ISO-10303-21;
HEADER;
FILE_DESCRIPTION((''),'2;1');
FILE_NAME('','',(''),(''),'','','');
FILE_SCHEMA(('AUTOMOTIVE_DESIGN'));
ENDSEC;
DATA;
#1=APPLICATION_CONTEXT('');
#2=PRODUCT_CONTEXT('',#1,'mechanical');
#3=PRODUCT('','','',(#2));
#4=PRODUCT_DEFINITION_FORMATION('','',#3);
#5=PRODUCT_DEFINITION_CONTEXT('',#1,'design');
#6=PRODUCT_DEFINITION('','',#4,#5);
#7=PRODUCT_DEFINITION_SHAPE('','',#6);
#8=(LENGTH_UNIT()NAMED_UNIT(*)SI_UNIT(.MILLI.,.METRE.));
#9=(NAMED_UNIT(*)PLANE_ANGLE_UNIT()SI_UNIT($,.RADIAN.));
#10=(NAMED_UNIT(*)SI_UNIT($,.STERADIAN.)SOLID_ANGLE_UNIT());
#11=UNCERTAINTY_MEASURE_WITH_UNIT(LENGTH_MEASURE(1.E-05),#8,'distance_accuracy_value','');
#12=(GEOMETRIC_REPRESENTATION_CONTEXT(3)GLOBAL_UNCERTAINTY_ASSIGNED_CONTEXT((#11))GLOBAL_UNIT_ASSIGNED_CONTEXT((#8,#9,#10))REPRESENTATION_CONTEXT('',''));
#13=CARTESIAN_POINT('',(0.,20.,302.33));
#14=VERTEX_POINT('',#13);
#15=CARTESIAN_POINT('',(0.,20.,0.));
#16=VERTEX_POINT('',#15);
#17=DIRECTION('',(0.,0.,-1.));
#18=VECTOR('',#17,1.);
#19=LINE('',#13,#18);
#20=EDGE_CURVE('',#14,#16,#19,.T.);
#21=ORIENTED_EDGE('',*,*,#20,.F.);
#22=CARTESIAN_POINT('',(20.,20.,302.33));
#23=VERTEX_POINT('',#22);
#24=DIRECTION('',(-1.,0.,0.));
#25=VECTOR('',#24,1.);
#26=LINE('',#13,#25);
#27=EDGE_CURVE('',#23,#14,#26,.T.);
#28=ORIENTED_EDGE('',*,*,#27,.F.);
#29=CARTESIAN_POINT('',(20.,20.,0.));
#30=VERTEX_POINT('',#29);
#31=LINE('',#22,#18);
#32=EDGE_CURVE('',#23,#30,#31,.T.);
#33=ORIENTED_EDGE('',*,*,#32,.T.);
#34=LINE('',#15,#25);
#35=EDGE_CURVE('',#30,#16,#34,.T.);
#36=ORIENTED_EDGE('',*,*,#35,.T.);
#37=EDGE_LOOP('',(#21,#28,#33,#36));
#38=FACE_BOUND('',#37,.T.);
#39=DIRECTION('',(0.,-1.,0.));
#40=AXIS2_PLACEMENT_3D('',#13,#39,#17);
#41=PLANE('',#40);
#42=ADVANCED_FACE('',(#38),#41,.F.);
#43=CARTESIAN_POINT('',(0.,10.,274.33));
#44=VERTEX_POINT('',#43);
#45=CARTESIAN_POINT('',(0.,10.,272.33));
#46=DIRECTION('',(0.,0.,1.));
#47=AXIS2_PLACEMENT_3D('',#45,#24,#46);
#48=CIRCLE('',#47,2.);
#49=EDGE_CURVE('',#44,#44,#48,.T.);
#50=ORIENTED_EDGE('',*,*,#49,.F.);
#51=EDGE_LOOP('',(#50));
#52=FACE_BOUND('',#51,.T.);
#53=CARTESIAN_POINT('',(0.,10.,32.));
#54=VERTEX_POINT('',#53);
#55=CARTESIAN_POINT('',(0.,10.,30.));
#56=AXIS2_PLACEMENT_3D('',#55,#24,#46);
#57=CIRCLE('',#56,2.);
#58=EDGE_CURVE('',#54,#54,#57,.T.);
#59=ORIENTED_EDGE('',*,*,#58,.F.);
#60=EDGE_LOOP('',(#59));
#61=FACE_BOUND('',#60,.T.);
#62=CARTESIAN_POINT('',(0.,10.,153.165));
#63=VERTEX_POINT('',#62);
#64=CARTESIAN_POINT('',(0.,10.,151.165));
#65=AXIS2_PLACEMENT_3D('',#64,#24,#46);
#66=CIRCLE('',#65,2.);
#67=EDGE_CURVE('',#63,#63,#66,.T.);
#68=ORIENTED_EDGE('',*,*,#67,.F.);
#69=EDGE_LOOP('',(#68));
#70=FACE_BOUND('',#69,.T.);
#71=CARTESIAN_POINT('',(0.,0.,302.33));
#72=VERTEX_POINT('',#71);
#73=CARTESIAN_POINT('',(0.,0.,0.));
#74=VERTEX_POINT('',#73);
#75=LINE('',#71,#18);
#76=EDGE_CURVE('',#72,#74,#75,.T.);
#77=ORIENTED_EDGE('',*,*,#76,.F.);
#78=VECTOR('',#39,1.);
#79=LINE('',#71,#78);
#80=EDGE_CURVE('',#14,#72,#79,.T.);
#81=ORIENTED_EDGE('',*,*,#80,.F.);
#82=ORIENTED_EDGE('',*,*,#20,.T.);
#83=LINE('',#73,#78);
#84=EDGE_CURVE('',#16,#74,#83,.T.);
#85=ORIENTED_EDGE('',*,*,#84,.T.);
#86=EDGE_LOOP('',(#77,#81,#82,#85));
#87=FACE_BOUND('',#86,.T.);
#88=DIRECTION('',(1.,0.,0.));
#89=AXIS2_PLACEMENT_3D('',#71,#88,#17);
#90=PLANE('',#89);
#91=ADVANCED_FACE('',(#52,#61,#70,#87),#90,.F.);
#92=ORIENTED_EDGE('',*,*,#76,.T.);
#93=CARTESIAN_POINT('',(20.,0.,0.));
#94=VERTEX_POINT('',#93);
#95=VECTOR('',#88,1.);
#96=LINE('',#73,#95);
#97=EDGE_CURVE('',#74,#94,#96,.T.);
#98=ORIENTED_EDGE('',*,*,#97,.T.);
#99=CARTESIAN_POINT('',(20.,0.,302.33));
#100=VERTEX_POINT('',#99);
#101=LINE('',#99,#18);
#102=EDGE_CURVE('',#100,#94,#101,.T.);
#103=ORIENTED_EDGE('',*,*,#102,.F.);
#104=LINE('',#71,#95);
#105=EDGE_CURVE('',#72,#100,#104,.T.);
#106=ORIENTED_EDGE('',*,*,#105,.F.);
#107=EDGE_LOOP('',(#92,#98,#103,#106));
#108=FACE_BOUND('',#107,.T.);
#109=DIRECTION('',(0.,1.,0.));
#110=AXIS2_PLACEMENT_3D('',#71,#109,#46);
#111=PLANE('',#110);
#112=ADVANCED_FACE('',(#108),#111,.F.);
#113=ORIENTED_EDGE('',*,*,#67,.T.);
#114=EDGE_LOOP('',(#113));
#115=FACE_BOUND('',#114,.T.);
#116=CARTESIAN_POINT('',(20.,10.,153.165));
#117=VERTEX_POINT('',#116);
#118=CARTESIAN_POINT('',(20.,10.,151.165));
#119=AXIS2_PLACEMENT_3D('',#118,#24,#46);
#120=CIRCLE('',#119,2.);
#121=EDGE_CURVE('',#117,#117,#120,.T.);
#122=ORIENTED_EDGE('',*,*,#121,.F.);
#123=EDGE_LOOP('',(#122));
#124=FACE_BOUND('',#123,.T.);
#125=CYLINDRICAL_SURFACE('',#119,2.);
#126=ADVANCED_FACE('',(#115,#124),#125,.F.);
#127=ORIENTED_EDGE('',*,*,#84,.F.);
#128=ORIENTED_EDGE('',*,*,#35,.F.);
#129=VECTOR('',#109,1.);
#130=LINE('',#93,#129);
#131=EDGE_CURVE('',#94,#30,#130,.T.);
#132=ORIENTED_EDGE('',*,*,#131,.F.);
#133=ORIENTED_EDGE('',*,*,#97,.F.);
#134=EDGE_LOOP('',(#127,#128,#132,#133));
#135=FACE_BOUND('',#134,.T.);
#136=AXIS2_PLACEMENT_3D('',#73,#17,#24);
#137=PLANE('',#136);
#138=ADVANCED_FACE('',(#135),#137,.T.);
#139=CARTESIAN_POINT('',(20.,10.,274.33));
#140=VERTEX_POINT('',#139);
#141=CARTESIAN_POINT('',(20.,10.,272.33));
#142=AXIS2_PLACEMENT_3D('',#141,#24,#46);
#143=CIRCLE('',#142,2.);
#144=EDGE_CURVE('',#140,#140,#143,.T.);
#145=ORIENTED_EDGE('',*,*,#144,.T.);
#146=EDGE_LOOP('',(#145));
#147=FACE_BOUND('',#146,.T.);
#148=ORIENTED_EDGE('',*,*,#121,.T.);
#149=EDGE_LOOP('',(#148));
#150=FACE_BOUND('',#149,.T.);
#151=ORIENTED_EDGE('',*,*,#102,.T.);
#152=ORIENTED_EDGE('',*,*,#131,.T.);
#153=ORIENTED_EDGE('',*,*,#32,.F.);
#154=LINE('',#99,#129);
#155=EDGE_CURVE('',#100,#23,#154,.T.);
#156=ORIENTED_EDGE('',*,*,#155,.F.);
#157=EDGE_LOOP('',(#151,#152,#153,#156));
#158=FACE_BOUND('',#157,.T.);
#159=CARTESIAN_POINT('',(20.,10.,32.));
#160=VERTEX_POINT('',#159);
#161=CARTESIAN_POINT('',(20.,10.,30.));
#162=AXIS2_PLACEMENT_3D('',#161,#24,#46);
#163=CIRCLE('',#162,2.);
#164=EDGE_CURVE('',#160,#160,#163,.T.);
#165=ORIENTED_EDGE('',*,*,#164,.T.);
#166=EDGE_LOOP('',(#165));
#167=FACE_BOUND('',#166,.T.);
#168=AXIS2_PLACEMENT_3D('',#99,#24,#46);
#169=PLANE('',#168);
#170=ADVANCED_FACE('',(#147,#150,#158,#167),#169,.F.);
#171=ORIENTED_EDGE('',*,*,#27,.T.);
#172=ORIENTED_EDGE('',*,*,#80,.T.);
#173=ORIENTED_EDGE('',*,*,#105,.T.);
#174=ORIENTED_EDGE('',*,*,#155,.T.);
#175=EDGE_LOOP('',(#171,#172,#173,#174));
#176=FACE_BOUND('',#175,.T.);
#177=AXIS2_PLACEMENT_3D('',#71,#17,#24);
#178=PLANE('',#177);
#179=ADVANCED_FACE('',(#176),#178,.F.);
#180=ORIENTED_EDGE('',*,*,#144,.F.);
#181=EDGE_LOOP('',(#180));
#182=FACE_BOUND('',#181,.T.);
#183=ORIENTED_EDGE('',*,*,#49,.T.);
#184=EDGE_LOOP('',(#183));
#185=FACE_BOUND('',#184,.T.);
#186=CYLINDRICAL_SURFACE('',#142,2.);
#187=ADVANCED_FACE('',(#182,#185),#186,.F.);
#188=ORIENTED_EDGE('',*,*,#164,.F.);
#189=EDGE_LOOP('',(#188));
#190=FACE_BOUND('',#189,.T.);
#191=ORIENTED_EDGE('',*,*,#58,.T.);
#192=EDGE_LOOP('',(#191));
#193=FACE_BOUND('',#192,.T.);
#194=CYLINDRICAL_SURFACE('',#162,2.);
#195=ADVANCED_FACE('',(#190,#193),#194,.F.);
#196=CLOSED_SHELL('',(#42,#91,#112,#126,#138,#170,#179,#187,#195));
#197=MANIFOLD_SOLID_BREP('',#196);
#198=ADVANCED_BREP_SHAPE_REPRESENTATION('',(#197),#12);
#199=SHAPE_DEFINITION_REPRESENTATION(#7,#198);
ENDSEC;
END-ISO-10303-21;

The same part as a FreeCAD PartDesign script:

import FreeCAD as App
import Part
import Sketcher

V = App.Vector
Q = App.Units.Quantity

doc = App.newDocument("Part")
params = doc.addObject("Spreadsheet::Sheet", "Params")
for row, (alias, value) in enumerate([
    ("sketch1_width", "20 mm"),
    ("pad1_length", "302.33 mm"),
    ("sketch2_diameter", "4 mm"),
], start=1):
    params.set(f"A{row}", alias)
    params.set(f"B{row}", "=" + value)
    params.setAlias(f"B{row}", alias)

body = doc.addObject("PartDesign::Body", "Body")

# Sketch on XY plane
sketch1 = doc.addObject("Sketcher::SketchObject", "Sketch")
body.addObject(sketch1)
sketch1.AttachmentSupport = (doc.XY_Plane, [""])
sketch1.MapMode = "FlatFace"
sketch1.addGeometry([
    Part.LineSegment(V(0, 20, 0), V(0, 0, 0)),
    Part.LineSegment(V(0, 0, 0), V(20, 0, 0)),
    Part.LineSegment(V(20, 0, 0), V(20, 20, 0)),
    Part.LineSegment(V(20, 20, 0), V(0, 20, 0)),
], False)
sketch1.addConstraint([
    Sketcher.Constraint("Coincident", 0, 2, 1, 1),
    Sketcher.Constraint("Coincident", 1, 2, 2, 1),
    Sketcher.Constraint("Coincident", 2, 2, 3, 1),
    Sketcher.Constraint("Coincident", 3, 2, 0, 1),
    Sketcher.Constraint("Vertical", 0),
    Sketcher.Constraint("Horizontal", 1),
    Sketcher.Constraint("Vertical", 2),
    Sketcher.Constraint("Horizontal", 3),
    Sketcher.Constraint("Coincident", 0, 2, -1, 1),
    Sketcher.Constraint("Equal", 3, 0),
    Sketcher.Constraint("DistanceX", 1, 1, 1, 2, Q("20 mm")),
])
sketch1.setExpression("Constraints[10]", "Params.sketch1_width")
pad1 = doc.addObject("PartDesign::Pad", "Pad")
body.addObject(pad1)
pad1.Profile = sketch1
pad1.setExpression("Length", "Params.pad1_length")

# Sketch on YZ plane
sketch2 = doc.addObject("Sketcher::SketchObject", "Sketch001")
body.addObject(sketch2)
sketch2.AttachmentSupport = (doc.YZ_Plane, [""])
sketch2.MapMode = "FlatFace"
sketch2.addGeometry([
    Part.Circle(V(10, 30, 0), V(0, 0, 1), 2),
    Part.Circle(V(10, 272.33, 0), V(0, 0, 1), 2),
    Part.Circle(V(10, 151.165, 0), V(0, 0, 1), 2),
], False)
sketch2.addConstraint([
    Sketcher.Constraint("Equal", 0, 1),
    Sketcher.Constraint("Equal", 1, 2),
    Sketcher.Constraint("Vertical", 0, 3, 1, 3),
    Sketcher.Constraint("Vertical", 1, 3, 2, 3),
    Sketcher.Constraint("Diameter", 0, Q("4 mm")),
    Sketcher.Constraint("DistanceX", -1, 1, 0, 3, Q("10 mm")),
    Sketcher.Constraint("DistanceY", -1, 1, 0, 3, Q("30 mm")),
    Sketcher.Constraint("DistanceY", -1, 1, 1, 3, Q("272.33 mm")),
    Sketcher.Constraint("DistanceY", -1, 1, 2, 3, Q("151.165 mm")),
])
sketch2.setExpression("Constraints[4]", "Params.sketch2_diameter")
pocket1 = doc.addObject("PartDesign::Pocket", "Pocket")
body.addObject(pocket1)
pocket1.Profile = sketch2
pocket1.Type = "ThroughAll"
pocket1.Reversed = True

doc.recompute()
